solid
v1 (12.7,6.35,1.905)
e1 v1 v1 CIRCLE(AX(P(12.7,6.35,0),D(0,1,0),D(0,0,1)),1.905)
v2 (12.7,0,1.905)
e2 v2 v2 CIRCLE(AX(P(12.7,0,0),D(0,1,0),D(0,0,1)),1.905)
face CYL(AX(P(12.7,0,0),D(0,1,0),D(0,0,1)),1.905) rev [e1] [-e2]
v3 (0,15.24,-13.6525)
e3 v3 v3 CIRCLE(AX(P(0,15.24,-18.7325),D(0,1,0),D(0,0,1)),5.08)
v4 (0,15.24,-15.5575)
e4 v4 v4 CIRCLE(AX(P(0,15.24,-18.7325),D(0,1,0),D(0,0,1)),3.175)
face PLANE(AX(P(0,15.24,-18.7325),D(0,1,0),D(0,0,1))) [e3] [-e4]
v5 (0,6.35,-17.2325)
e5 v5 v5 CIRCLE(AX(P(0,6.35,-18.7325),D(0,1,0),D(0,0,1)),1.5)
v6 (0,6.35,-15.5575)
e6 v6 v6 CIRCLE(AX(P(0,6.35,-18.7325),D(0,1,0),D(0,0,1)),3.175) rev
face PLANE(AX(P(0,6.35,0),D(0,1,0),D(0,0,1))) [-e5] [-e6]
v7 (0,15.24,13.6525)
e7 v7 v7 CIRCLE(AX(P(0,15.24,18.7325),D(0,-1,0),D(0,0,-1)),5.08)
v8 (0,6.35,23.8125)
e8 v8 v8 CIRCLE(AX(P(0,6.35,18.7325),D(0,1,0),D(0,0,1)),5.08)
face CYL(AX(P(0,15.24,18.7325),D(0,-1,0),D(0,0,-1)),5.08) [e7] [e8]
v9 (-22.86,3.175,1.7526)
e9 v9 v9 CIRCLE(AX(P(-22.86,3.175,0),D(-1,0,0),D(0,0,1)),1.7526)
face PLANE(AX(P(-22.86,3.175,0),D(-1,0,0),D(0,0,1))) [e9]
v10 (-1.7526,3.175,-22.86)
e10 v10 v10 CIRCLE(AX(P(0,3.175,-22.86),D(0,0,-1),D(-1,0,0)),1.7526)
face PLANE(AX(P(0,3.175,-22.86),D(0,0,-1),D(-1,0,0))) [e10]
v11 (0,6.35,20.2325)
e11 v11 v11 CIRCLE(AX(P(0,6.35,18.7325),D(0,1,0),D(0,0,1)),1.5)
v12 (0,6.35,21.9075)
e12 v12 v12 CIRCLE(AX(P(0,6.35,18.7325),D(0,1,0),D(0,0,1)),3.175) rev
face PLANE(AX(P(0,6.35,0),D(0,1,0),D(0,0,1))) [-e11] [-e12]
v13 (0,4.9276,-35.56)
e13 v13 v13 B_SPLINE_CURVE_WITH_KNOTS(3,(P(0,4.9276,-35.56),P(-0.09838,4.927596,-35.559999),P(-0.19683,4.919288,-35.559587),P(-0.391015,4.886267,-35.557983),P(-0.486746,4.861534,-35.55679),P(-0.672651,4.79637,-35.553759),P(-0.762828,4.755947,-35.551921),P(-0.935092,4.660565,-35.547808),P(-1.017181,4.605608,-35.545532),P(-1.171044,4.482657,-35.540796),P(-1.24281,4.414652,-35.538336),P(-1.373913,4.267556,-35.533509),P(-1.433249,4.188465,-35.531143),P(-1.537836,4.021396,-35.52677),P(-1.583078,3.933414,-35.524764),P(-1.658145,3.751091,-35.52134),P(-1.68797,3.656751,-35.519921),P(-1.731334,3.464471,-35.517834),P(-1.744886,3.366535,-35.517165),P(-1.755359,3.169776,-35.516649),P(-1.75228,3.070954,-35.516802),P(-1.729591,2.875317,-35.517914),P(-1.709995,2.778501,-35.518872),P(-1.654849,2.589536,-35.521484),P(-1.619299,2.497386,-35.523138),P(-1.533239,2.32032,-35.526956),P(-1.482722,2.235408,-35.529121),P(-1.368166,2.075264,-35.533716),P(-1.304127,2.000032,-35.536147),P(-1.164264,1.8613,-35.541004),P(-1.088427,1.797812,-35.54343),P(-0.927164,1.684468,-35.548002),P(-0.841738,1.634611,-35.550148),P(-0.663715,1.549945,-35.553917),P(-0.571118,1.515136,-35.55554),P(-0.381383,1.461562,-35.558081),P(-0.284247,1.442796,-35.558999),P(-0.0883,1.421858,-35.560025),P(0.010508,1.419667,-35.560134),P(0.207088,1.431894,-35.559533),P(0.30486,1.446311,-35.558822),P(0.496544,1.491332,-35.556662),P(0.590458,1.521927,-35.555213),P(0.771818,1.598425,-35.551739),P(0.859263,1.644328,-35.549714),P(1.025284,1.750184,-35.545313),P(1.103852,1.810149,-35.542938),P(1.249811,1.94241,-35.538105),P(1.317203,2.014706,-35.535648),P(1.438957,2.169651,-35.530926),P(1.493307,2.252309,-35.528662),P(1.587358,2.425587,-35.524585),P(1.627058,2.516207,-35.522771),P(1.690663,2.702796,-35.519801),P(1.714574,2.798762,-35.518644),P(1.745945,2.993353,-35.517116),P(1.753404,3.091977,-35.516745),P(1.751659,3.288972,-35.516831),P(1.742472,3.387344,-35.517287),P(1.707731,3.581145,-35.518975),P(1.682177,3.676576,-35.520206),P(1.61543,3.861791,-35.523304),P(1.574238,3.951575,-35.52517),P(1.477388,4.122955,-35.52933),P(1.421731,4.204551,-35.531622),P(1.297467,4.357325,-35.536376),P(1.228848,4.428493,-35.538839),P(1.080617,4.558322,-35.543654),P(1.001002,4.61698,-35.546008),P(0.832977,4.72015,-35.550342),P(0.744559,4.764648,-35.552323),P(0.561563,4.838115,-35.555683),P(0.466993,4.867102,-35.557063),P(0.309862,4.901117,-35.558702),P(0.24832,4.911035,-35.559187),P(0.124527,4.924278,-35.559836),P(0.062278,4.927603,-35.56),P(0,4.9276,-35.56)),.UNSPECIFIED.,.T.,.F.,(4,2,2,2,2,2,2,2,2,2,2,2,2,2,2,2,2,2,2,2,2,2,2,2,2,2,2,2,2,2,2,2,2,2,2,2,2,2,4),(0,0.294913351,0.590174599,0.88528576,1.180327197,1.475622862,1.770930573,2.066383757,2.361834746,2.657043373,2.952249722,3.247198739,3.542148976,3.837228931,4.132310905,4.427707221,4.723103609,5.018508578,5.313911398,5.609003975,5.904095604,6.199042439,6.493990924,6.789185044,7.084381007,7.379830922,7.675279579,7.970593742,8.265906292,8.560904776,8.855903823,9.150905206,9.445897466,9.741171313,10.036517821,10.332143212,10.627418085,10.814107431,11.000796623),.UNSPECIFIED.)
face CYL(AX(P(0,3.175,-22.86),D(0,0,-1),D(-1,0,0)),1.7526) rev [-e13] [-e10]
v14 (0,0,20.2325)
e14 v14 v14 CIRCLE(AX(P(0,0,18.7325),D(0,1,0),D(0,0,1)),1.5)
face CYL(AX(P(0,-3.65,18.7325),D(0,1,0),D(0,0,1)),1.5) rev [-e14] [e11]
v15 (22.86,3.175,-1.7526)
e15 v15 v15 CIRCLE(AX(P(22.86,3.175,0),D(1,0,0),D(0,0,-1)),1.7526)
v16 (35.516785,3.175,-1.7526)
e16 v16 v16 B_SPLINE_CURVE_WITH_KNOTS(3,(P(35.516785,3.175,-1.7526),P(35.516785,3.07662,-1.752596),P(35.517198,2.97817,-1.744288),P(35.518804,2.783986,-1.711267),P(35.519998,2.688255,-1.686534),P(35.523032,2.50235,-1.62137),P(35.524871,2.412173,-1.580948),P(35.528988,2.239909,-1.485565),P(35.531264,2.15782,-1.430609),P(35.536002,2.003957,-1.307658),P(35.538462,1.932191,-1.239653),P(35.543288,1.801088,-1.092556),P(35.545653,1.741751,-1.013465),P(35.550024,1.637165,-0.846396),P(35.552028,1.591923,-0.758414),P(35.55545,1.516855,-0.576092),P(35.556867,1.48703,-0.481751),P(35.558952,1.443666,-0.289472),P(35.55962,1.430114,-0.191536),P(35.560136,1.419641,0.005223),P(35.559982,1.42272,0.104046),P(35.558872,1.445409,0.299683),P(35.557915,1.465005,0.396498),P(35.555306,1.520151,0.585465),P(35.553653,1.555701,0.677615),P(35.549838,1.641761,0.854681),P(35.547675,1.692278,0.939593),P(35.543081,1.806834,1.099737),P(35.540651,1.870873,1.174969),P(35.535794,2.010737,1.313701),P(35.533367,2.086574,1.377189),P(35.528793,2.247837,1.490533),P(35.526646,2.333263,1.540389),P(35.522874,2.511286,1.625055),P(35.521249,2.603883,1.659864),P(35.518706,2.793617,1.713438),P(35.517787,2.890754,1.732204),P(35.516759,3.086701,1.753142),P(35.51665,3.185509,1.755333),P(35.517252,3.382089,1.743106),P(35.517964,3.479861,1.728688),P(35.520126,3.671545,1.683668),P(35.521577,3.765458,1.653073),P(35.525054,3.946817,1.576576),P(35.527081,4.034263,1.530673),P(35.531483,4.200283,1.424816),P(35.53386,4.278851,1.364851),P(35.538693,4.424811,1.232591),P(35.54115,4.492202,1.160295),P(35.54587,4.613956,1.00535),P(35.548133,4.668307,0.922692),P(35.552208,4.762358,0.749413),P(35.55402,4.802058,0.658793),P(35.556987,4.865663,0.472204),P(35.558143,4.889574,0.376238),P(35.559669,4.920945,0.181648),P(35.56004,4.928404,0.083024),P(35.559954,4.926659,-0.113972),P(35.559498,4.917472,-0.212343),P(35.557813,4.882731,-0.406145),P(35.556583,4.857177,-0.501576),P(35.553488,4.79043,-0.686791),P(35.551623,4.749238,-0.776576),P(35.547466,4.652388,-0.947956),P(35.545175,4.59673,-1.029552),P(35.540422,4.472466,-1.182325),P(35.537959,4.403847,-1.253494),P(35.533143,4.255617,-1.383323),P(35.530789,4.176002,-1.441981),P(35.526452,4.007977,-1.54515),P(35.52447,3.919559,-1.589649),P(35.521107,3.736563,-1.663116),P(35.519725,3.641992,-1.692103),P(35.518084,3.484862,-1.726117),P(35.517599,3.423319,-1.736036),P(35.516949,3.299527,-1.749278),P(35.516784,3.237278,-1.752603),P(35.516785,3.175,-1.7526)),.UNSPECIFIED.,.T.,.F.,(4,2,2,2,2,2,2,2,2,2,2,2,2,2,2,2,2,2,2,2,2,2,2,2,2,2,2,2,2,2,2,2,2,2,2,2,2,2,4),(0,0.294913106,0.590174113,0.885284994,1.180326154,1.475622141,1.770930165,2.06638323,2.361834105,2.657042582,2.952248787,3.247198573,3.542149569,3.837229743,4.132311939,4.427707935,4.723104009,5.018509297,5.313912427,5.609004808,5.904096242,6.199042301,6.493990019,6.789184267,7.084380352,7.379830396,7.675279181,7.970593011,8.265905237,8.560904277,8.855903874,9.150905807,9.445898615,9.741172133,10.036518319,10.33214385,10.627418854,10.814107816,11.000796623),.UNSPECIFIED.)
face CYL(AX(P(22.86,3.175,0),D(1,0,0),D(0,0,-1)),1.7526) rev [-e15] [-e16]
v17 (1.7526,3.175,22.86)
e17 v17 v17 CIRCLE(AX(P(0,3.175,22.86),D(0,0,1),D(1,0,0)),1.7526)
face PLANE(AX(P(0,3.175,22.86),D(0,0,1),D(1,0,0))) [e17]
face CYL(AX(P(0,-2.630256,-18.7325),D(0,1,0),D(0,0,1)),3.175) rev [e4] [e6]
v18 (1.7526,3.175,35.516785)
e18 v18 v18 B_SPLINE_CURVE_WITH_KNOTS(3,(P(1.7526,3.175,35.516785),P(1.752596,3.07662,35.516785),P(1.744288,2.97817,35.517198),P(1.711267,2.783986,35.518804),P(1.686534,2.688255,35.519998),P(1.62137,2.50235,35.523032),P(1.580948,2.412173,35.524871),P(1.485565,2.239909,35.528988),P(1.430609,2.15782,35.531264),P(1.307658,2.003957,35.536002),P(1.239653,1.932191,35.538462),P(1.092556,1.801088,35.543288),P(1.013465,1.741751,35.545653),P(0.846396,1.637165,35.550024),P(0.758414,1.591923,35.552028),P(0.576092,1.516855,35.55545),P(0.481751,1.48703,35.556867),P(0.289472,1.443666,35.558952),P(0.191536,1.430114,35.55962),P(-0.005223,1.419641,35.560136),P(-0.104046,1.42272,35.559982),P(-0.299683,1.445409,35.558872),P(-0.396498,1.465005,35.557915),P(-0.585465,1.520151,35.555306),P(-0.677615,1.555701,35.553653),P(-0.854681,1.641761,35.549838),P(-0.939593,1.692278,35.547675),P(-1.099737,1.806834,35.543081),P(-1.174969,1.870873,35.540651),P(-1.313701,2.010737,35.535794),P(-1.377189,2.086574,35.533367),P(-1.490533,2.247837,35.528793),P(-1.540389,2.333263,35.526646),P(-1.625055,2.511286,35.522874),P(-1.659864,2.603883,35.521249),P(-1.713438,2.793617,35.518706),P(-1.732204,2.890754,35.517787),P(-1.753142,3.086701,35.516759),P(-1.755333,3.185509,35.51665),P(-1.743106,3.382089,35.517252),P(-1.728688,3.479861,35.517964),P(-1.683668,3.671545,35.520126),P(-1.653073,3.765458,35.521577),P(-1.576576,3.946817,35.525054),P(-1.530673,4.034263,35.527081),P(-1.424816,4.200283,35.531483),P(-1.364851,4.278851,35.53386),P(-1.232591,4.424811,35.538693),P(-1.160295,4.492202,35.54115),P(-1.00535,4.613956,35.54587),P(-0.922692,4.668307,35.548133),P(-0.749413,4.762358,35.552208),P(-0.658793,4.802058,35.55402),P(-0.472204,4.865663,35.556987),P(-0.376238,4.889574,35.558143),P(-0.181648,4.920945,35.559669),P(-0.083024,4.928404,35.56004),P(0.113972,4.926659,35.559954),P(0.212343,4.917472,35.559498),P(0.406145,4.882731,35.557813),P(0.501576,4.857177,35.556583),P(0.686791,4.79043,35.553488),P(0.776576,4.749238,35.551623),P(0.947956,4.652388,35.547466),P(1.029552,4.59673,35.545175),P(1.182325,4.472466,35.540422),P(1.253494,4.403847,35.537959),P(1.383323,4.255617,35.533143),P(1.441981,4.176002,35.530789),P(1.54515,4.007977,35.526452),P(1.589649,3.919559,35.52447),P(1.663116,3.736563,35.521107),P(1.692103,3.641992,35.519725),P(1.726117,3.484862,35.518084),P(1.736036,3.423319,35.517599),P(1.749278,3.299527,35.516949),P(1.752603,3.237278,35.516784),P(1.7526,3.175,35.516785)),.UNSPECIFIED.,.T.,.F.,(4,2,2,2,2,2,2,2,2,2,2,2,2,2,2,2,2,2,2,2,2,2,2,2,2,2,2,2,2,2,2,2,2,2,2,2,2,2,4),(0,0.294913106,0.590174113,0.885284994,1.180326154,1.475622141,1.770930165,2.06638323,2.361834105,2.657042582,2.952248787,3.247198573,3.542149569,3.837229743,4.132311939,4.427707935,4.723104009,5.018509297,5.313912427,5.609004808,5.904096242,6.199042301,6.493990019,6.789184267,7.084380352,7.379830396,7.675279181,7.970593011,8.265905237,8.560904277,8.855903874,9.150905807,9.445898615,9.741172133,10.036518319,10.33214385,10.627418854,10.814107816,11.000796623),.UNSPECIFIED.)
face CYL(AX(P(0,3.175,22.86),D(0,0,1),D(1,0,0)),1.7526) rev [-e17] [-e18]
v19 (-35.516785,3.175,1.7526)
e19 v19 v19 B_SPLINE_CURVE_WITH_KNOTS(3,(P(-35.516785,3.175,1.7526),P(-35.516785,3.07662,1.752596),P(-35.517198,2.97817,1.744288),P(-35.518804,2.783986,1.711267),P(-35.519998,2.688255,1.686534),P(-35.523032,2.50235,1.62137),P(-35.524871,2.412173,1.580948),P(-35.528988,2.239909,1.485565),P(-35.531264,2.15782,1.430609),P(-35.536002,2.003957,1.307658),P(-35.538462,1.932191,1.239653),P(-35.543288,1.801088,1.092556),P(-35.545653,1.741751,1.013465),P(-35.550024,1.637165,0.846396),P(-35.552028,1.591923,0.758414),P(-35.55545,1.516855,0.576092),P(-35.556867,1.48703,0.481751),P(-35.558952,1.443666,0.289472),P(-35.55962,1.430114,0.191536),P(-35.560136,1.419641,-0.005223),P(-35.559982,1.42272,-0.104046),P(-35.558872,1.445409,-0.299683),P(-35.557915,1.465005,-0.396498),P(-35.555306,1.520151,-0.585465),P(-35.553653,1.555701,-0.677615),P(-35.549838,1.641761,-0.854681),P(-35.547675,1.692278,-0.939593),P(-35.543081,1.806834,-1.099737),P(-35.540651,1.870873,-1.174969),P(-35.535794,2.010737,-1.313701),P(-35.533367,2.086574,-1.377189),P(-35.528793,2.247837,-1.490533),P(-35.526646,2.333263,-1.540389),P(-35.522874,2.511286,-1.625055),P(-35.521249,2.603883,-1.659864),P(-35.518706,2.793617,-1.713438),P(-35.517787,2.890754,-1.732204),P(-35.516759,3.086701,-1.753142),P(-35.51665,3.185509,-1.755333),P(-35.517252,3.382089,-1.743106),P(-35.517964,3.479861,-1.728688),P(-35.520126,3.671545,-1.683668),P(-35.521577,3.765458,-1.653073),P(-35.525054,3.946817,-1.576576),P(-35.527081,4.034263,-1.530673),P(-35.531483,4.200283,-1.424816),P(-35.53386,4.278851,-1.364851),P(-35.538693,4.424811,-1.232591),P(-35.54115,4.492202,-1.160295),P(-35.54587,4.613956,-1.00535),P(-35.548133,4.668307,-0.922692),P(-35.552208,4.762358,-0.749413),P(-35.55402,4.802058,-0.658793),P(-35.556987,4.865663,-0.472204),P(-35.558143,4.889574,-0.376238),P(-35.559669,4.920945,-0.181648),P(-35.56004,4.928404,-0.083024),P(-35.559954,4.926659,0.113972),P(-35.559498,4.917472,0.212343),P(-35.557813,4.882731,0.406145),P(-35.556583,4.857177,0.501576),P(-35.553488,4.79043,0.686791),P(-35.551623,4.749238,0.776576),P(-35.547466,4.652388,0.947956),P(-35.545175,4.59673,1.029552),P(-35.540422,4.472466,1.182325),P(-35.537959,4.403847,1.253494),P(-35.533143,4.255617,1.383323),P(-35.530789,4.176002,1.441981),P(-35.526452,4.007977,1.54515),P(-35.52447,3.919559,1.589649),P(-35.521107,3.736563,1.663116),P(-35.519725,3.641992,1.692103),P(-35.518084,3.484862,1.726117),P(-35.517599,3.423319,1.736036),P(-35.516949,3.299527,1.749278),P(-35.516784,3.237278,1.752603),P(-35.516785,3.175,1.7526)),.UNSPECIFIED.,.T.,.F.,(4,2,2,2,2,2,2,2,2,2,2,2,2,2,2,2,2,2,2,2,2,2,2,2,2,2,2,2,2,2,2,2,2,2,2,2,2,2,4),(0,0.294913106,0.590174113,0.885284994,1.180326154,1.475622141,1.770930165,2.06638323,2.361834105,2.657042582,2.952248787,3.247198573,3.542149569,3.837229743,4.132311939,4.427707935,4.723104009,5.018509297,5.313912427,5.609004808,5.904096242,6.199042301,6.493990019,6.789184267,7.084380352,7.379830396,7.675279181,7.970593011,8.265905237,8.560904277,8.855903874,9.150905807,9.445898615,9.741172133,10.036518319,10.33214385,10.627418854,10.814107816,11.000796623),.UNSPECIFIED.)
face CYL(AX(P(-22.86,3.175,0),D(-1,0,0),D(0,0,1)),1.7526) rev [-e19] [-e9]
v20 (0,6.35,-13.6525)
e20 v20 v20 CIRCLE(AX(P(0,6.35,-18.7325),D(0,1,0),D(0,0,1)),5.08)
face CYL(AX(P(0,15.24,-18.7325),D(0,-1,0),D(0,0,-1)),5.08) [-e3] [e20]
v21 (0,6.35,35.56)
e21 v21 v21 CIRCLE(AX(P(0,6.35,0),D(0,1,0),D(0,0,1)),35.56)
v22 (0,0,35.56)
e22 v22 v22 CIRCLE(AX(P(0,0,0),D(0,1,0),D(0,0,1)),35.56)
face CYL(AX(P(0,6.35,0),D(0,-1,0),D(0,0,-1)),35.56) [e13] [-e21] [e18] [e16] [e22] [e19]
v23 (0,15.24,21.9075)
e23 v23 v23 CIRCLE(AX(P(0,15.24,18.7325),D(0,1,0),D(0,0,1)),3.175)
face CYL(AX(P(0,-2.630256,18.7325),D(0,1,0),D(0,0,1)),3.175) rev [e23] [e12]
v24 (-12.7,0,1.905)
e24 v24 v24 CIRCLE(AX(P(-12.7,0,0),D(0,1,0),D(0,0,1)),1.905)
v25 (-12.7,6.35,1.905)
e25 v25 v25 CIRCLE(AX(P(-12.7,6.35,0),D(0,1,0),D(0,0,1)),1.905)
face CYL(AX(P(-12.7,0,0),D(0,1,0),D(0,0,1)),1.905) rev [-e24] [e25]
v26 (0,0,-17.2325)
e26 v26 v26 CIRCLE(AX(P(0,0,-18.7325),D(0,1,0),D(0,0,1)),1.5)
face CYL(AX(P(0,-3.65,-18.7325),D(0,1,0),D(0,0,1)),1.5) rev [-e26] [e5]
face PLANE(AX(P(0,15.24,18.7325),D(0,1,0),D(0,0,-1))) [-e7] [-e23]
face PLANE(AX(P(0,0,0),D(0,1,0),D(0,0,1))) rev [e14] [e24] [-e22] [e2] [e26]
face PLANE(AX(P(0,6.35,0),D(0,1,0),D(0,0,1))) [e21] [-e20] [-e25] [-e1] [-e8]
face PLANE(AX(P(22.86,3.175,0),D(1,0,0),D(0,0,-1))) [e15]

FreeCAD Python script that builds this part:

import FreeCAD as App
import Part
import Sketcher
from FreeCAD import Vector
Q = App.Units.Quantity

doc = App.newDocument("Part")
body = doc.addObject("PartDesign::Body", "Body")

sketch1 = doc.addObject("Sketcher::SketchObject", "Sketch")
body.addObject(sketch1)
sketch1.AttachmentSupport = (doc.XZ_Plane, [""])
sketch1.MapMode = "FlatFace"
sketch1.addGeometry(Part.Circle(Vector(0, 0, 0), Vector(0, 0, 1), 35.56), False)
sketch1.addConstraint([
    Sketcher.Constraint("Coincident", 0, 3, -1, 1),
    Sketcher.Constraint("Diameter", 0, Q("2.8 in")),
])
pad1 = doc.addObject("PartDesign::Pad", "Pad")
body.addObject(pad1)
pad1.Profile = sketch1
pad1.Length = Q("0.25 in")
pad1.Reversed = True

sketch2 = doc.addObject("Sketcher::SketchObject", "Sketch001")
body.addObject(sketch2)
sketch2.AttachmentSupport = (doc.XZ_Plane, [""])
sketch2.MapMode = "FlatFace"
sketch2.AttachmentOffset = App.Placement(Vector(0, 0, -0.25 * 25.4), App.Rotation())
sketch2.addGeometry([
    Part.Circle(Vector(-12.7, 0, 0), Vector(0, 0, 1), 1.905),
    Part.Circle(Vector(12.7, 0, 0), Vector(0, 0, 1), 1.905),
], False)
sketch2.addConstraint([
    Sketcher.Constraint("Equal", 0, 1),
    Sketcher.Constraint("Symmetric", 0, 3, 1, 3, -1, 1),
    Sketcher.Constraint("PointOnObject", 0, 3, -1),
    Sketcher.Constraint("Diameter", 0, Q("0.15 in")),
    Sketcher.Constraint("DistanceX", 0, 3, 1, 3, Q("1 in")),
])
pocket1 = doc.addObject("PartDesign::Pocket", "Pocket")
body.addObject(pocket1)
pocket1.Profile = sketch2
pocket1.Length = Q("0.25 in")
pocket1.Reversed = True

sketch3 = doc.addObject("Sketcher::SketchObject", "Sketch002")
body.addObject(sketch3)
sketch3.AttachmentSupport = (doc.XZ_Plane, [""])
sketch3.MapMode = "FlatFace"
sketch3.AttachmentOffset = App.Placement(Vector(0, 0, -0.25 * 25.4), App.Rotation())
sketch3.addGeometry([
    Part.Circle(Vector(0, -18.7325, 0), Vector(0, 0, 1), 5.08),
    Part.Circle(Vector(0, -18.7325, 0), Vector(0, 0, 1), 2.54),
], False)
sketch3.addConstraint([
    Sketcher.Constraint("Coincident", 1, 3, 0, 3),
    Sketcher.Constraint("PointOnObject", 0, 3, -2),
    Sketcher.Constraint("Diameter", 0, Q("0.4 in")),
    Sketcher.Constraint("Diameter", 1, Q("0.2 in")),
    Sketcher.Constraint("DistanceY", 0, 3, -1, 1, Q("0.7375 in")),
])
pad2 = doc.addObject("PartDesign::Pad", "Pad001")
body.addObject(pad2)
pad2.Profile = sketch3
pad2.Length = Q("0.35 in")
pad2.Reversed = True
doc.recompute()

mirrored = doc.addObject("PartDesign::Mirrored", "Mirrored")
body.addObject(mirrored)
mirrored.Originals = [pad2]
mirrored.MirrorPlane = (doc.XY_Plane, [""])
body.Tip = mirrored

sketch4 = doc.addObject("Sketcher::SketchObject", "Sketch003")
body.addObject(sketch4)
sketch4.AttachmentSupport = (doc.XZ_Plane, [""])
sketch4.MapMode = "FlatFace"
sketch4.AttachmentOffset = App.Placement(Vector(0, 0, -0.25 * 25.4), App.Rotation())
sketch4.addGeometry([
    Part.Circle(Vector(0, -18.7325, 0), Vector(0, 0, 1), 1.5),
    Part.Circle(Vector(0, 18.7325, 0), Vector(0, 0, 1), 1.5),
], False)
sketch4.addConstraint([
    Sketcher.Constraint("Equal", 0, 1),
    Sketcher.Constraint("Symmetric", 0, 3, 1, 3, -1, 1),
    Sketcher.Constraint("PointOnObject", 0, 3, -2),
    Sketcher.Constraint("Diameter", 0, 3.0),
    Sketcher.Constraint("DistanceY", 0, 3, 1, 3, Q("1.475 in")),
])
pocket2 = doc.addObject("PartDesign::Pocket", "Pocket001")
body.addObject(pocket2)
pocket2.Profile = sketch4
pocket2.Length = 10
pocket2.Reversed = True

sketch5 = doc.addObject("Sketcher::SketchObject", "Sketch004")
body.addObject(sketch5)
sketch5.AttachmentSupport = (doc.XZ_Plane, [""])
sketch5.MapMode = "FlatFace"
sketch5.AttachmentOffset = App.Placement(Vector(0, 0, -0.6 * 25.4), App.Rotation())
sketch5.addGeometry([
    Part.Circle(Vector(0, -18.7325, 0), Vector(0, 0, 1), 3.175),
    Part.Circle(Vector(0, 18.7325, 0), Vector(0, 0, 1), 3.175),
], False)
sketch5.addConstraint([
    Sketcher.Constraint("Equal", 0, 1),
    Sketcher.Constraint("Symmetric", 0, 3, 1, 3, -1, 1),
    Sketcher.Constraint("PointOnObject", 0, 3, -2),
    Sketcher.Constraint("Diameter", 0, Q("0.25 in")),
    Sketcher.Constraint("DistanceY", 0, 3, 1, 3, Q("1.475 in")),
])
pocket3 = doc.addObject("PartDesign::Pocket", "Pocket002")
body.addObject(pocket3)
pocket3.Profile = sketch5
pocket3.Length = Q("0.35 in")
pocket3.Reversed = True

sketch6 = doc.addObject("Sketcher::SketchObject", "Sketch005")
body.addObject(sketch6)
sketch6.AttachmentSupport = (doc.YZ_Plane, [""])
sketch6.MapMode = "FlatFace"
sketch6.AttachmentOffset = App.Placement(Vector(0, 0, 1.6 * 25.4), App.Rotation())
sketch6.addGeometry(Part.Circle(Vector(3.175, 0, 0), Vector(0, 0, 1), 1.7526), False)
sketch6.addConstraint([
    Sketcher.Constraint("PointOnObject", 0, 3, -1),
    Sketcher.Constraint("Diameter", 0, Q("0.138 in")),
    Sketcher.Constraint("DistanceX", -1, 1, 0, 3, Q("0.125 in")),
])
pocket4 = doc.addObject("PartDesign::Pocket", "Pocket003")
body.addObject(pocket4)
pocket4.Profile = sketch6
pocket4.Length = Q("0.7 in")
doc.recompute()

polarpattern = doc.addObject("PartDesign::PolarPattern", "PolarPattern")
body.addObject(polarpattern)
polarpattern.Originals = [pocket4]
polarpattern.Axis = (doc.Y_Axis, [""])
polarpattern.Angle = 360
polarpattern.Occurrences = 4
body.Tip = polarpattern

doc.recompute()
